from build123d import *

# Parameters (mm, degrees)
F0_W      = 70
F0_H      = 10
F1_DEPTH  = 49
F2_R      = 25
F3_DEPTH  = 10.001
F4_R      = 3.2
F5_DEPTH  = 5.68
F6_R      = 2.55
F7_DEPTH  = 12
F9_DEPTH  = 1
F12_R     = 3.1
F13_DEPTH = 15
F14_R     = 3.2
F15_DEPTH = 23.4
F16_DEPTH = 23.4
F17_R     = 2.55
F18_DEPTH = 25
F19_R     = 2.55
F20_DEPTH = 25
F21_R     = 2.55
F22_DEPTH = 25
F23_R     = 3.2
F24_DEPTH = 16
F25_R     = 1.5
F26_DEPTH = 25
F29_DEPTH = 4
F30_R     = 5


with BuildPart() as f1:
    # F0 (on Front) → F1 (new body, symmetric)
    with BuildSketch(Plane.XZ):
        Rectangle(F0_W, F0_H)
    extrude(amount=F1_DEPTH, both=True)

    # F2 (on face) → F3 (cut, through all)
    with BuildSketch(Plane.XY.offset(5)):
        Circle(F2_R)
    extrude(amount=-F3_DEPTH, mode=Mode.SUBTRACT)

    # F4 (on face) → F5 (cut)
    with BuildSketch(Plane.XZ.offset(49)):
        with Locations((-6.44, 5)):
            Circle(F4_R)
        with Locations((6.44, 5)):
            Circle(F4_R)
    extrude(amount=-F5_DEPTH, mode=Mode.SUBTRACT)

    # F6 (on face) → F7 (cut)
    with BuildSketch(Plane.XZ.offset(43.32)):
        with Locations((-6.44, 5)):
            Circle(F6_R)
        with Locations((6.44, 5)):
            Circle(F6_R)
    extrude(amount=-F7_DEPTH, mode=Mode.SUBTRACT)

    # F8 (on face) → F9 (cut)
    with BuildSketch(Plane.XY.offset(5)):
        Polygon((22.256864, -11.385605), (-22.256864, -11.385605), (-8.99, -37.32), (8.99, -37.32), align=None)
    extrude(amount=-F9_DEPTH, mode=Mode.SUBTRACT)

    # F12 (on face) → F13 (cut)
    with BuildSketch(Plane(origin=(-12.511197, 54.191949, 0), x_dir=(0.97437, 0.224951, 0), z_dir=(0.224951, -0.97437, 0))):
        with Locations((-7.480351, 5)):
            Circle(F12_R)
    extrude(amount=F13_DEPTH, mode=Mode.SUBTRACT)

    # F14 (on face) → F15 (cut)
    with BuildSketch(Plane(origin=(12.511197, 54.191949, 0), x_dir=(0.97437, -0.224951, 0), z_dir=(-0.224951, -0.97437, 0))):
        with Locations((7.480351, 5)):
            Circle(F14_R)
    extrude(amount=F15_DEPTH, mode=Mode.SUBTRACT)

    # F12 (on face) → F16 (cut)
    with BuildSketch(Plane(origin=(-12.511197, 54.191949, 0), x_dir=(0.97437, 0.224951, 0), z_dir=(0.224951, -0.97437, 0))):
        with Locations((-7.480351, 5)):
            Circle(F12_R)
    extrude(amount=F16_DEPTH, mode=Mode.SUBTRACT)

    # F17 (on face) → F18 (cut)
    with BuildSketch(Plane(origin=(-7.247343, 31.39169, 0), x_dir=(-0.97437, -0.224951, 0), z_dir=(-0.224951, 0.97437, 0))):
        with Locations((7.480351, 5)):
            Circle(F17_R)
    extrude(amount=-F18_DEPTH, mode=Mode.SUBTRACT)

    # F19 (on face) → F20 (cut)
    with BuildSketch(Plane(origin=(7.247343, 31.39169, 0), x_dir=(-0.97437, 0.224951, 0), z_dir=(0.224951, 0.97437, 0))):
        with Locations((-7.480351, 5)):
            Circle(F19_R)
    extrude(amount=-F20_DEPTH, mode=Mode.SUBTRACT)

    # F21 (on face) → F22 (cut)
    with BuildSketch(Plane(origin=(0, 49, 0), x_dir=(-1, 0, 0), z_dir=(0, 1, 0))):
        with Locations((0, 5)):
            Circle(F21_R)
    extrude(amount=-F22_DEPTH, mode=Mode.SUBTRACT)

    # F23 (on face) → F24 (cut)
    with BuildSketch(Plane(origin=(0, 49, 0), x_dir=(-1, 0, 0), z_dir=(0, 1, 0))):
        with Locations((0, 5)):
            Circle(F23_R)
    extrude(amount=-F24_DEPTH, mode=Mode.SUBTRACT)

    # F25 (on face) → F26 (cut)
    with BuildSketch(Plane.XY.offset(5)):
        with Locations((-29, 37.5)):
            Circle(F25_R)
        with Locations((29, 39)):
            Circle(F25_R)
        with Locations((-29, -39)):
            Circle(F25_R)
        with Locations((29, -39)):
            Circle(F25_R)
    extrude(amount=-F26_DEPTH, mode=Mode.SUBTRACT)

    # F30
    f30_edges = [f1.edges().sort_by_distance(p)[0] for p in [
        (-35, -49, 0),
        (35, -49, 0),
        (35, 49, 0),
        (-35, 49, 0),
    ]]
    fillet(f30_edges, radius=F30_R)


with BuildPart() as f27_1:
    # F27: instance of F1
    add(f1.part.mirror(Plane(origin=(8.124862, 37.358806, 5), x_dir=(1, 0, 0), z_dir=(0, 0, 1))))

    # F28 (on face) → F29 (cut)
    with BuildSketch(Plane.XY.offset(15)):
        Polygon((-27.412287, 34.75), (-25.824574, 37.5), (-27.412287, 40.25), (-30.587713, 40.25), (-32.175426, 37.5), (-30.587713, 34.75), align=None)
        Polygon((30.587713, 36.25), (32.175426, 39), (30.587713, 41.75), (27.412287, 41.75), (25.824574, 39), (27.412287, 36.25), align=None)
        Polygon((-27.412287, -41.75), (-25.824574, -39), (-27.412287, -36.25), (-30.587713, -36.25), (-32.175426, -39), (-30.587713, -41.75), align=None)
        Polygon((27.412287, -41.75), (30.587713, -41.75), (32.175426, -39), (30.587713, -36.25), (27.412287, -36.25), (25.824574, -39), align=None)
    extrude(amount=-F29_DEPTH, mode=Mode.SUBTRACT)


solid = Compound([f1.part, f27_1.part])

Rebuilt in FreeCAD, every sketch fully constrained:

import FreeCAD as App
import Part
import Sketcher
Q = App.Units.Quantity


def edges_at(feature, points):
    """Names of the edges that pass closest to the given points."""
    edges = feature.Shape.Edges
    near = lambda p: min(range(len(edges)), key=lambda i: edges[i].distToShape(Part.Vertex(*p))[0])
    return sorted({f"Edge{near(p) + 1}" for p in points})

doc = App.newDocument("Part")
body = doc.addObject("PartDesign::Body", "Body")

# Sketch on XZ plane
sketch1 = doc.addObject("Sketcher::SketchObject", "Sketch")
body.addObject(sketch1)
sketch1.AttachmentSupport = (doc.XZ_Plane, [""])
sketch1.MapMode = "FlatFace"
sketch1.addGeometry([
    Part.LineSegment(App.Vector(-35, 5, 0), App.Vector(-35, -5, 0)),
    Part.LineSegment(App.Vector(-35, -5, 0), App.Vector(35, -5, 0)),
    Part.LineSegment(App.Vector(35, -5, 0), App.Vector(35, 5, 0)),
    Part.LineSegment(App.Vector(35, 5, 0), App.Vector(-35, 5, 0)),
], False)
sketch1.addConstraint([
    Sketcher.Constraint("Coincident", 0, 2, 1, 1),
    Sketcher.Constraint("Coincident", 1, 2, 2, 1),
    Sketcher.Constraint("Coincident", 2, 2, 3, 1),
    Sketcher.Constraint("Coincident", 3, 2, 0, 1),
    Sketcher.Constraint("Vertical", 0),
    Sketcher.Constraint("Horizontal", 1),
    Sketcher.Constraint("Vertical", 2),
    Sketcher.Constraint("Horizontal", 3),
    Sketcher.Constraint("Symmetric", 0, 2, 2, 2, -1, 1),
    Sketcher.Constraint("DistanceX", 1, 1, 1, 2, 70.0),
    Sketcher.Constraint("DistanceY", 0, 2, 0, 1, 10.0),
])
pad1 = doc.addObject("PartDesign::Pad", "Pad")
body.addObject(pad1)
pad1.Profile = sketch1
pad1.Length = 98
pad1.Midplane = True

# Sketch on XY plane
sketch2 = doc.addObject("Sketcher::SketchObject", "Sketch001")
body.addObject(sketch2)
sketch2.AttachmentSupport = (doc.XY_Plane, [""])
sketch2.MapMode = "FlatFace"
sketch2.AttachmentOffset = App.Placement(App.Vector(0, 0, 5), App.Rotation())
sketch2.addGeometry(Part.Circle(App.Vector(0, 0, 0), App.Vector(0, 0, 1), 25), False)
sketch2.addConstraint([
    Sketcher.Constraint("Coincident", 0, 3, -1, 1),
    Sketcher.Constraint("Diameter", 0, 50.0),
])
pocket1 = doc.addObject("PartDesign::Pocket", "Pocket")
body.addObject(pocket1)
pocket1.Profile = sketch2
pocket1.Type = "ThroughAll"

# Sketch on XZ plane
sketch3 = doc.addObject("Sketcher::SketchObject", "Sketch002")
body.addObject(sketch3)
sketch3.AttachmentSupport = (doc.XZ_Plane, [""])
sketch3.MapMode = "FlatFace"
sketch3.AttachmentOffset = App.Placement(App.Vector(0, 0, 49), App.Rotation())
sketch3.addGeometry([
    Part.Circle(App.Vector(-6.4, 5, 0), App.Vector(0, 0, 1), 3.2),
    Part.Circle(App.Vector(6.4, 5, 0), App.Vector(0, 0, 1), 3.2),
], False)
sketch3.addConstraint([
    Sketcher.Constraint("Equal", 0, 1),
    Sketcher.Constraint("Symmetric", 0, 3, 1, 3, -2),
    Sketcher.Constraint("Diameter", 0, 6.4),
    Sketcher.Constraint("DistanceY", -1, 1, 0, 3, 5.0),
    Sketcher.Constraint("DistanceX", 0, 3, -1, 1, 6.44),
])
pocket2 = doc.addObject("PartDesign::Pocket", "Pocket001")
body.addObject(pocket2)
pocket2.Profile = sketch3
pocket2.Length = 5.68

# Sketch on XZ plane
sketch4 = doc.addObject("Sketcher::SketchObject", "Sketch003")
body.addObject(sketch4)
sketch4.AttachmentSupport = (doc.XZ_Plane, [""])
sketch4.MapMode = "FlatFace"
sketch4.AttachmentOffset = App.Placement(App.Vector(0, 0, 43.32), App.Rotation())
sketch4.addGeometry([
    Part.Circle(App.Vector(-6.4, 5, 0), App.Vector(0, 0, 1), 2.5),
    Part.Circle(App.Vector(6.4, 5, 0), App.Vector(0, 0, 1), 2.5),
], False)
sketch4.addConstraint([
    Sketcher.Constraint("Equal", 0, 1),
    Sketcher.Constraint("Symmetric", 0, 3, 1, 3, -2),
    Sketcher.Constraint("Diameter", 0, 5.1),
    Sketcher.Constraint("DistanceY", -1, 1, 0, 3, 5.0),
    Sketcher.Constraint("DistanceX", 0, 3, -1, 1, 6.44),
])
pocket3 = doc.addObject("PartDesign::Pocket", "Pocket002")
body.addObject(pocket3)
pocket3.Profile = sketch4
pocket3.Length = 12

# Sketch on XY plane
sketch5 = doc.addObject("Sketcher::SketchObject", "Sketch004")
body.addObject(sketch5)
sketch5.AttachmentSupport = (doc.XY_Plane, [""])
sketch5.MapMode = "FlatFace"
sketch5.AttachmentOffset = App.Placement(App.Vector(0, 0, 5), App.Rotation())
sketch5.addGeometry([
    Part.LineSegment(App.Vector(22, -11, 0), App.Vector(-22, -11, 0)),
    Part.LineSegment(App.Vector(-22, -11, 0), App.Vector(-9, -37, 0)),
    Part.LineSegment(App.Vector(-9, -37, 0), App.Vector(9, -37, 0)),
    Part.LineSegment(App.Vector(9, -37, 0), App.Vector(22, -11, 0)),
], False)
sketch5.addConstraint([
    Sketcher.Constraint("Coincident", 0, 2, 1, 1),
    Sketcher.Constraint("Coincident", 1, 2, 2, 1),
    Sketcher.Constraint("Coincident", 2, 2, 3, 1),
    Sketcher.Constraint("Coincident", 3, 2, 0, 1),
    Sketcher.Constraint("Horizontal", 0),
    Sketcher.Constraint("Horizontal", 2),
    Sketcher.Constraint("Equal", 1, 3),
    Sketcher.Constraint("DistanceX", 2, 1, 2, 2, 17.98),
    Sketcher.Constraint("DistanceX", 1, 2, -1, 1, 8.99),
    Sketcher.Constraint("DistanceY", 1, 2, -1, 1, 37.32),
    Sketcher.Constraint("DistanceX", 0, 2, 0, 1, 44.513728),
    Sketcher.Constraint("Distance", 1, 29.130783),
])
pocket4 = doc.addObject("PartDesign::Pocket", "Pocket003")
body.addObject(pocket4)
pocket4.Profile = sketch5
pocket4.Length = 1

# Sketch on an angled plane
sketch6 = doc.addObject("Sketcher::SketchObject", "Sketch005")
body.addObject(sketch6)
sketch6.Placement = App.Placement(App.Vector(-12.511197, 54.191949, 0), App.Rotation(App.Vector(0.974370073, 0.224951017, 0), App.Vector(0, 0, 0.999999999), App.Vector(0.224951017, -0.974370073, 0), "ZXY"))
sketch6.addGeometry(Part.Circle(App.Vector(-7.5, 5, 0), App.Vector(0, 0, 1), 3.1), False)
sketch6.addConstraint([
    Sketcher.Constraint("Diameter", 0, 6.2),
    Sketcher.Constraint("DistanceY", -1, 1, 0, 3, 5.0),
    Sketcher.Constraint("DistanceX", 0, 3, -1, 1, 7.480351),
])
pocket5 = doc.addObject("PartDesign::Pocket", "Pocket004")
body.addObject(pocket5)
pocket5.Profile = sketch6
pocket5.Length = 15
pocket5.Reversed = True

# Sketch on an angled plane
sketch7 = doc.addObject("Sketcher::SketchObject", "Sketch006")
body.addObject(sketch7)
sketch7.Placement = App.Placement(App.Vector(12.511197, 54.191949, 0), App.Rotation(App.Vector(0.974370073, -0.224951017, 0), App.Vector(0, 0, 0.999999999), App.Vector(-0.224951017, -0.974370073, 0), "ZXY"))
sketch7.addGeometry(Part.Circle(App.Vector(7.5, 5, 0), App.Vector(0, 0, 1), 3.2), False)
sketch7.addConstraint([
    Sketcher.Constraint("Diameter", 0, 6.4),
    Sketcher.Constraint("DistanceY", -1, 1, 0, 3, 5.0),
    Sketcher.Constraint("DistanceX", -1, 1, 0, 3, 7.480351),
])
pocket6 = doc.addObject("PartDesign::Pocket", "Pocket005")
body.addObject(pocket6)
pocket6.Profile = sketch7
pocket6.Length = 23.4
pocket6.Reversed = True

# Sketch on an angled plane
sketch8 = doc.addObject("Sketcher::SketchObject", "Sketch007")
body.addObject(sketch8)
sketch8.Placement = App.Placement(App.Vector(-12.511197, 54.191949, 0), App.Rotation(App.Vector(0.974370073, 0.224951017, 0), App.Vector(0, 0, 0.999999999), App.Vector(0.224951017, -0.974370073, 0), "ZXY"))
sketch8.addGeometry(Part.Circle(App.Vector(-7.5, 5, 0), App.Vector(0, 0, 1), 3.1), False)
sketch8.addConstraint([
    Sketcher.Constraint("Diameter", 0, 6.2),
    Sketcher.Constraint("DistanceY", -1, 1, 0, 3, 5.0),
    Sketcher.Constraint("DistanceX", 0, 3, -1, 1, 7.480351),
])
pocket7 = doc.addObject("PartDesign::Pocket", "Pocket006")
body.addObject(pocket7)
pocket7.Profile = sketch8
pocket7.Length = 23.4
pocket7.Reversed = True

# Sketch on an angled plane
sketch9 = doc.addObject("Sketcher::SketchObject", "Sketch008")
body.addObject(sketch9)
sketch9.Placement = App.Placement(App.Vector(-7.247343, 31.39169, 0), App.Rotation(App.Vector(-0.974370073, -0.224951017, 0), App.Vector(0, 0, 0.999999999), App.Vector(-0.224951017, 0.974370073, 0), "ZXY"))
sketch9.addGeometry(Part.Circle(App.Vector(7.5, 5, 0), App.Vector(0, 0, 1), 2.5), False)
sketch9.addConstraint([
    Sketcher.Constraint("Diameter", 0, 5.1),
    Sketcher.Constraint("DistanceY", -1, 1, 0, 3, 5.0),
    Sketcher.Constraint("DistanceX", -1, 1, 0, 3, 7.480351),
])
pocket8 = doc.addObject("PartDesign::Pocket", "Pocket007")
body.addObject(pocket8)
pocket8.Profile = sketch9
pocket8.Length = 25

# Sketch on an angled plane
sketch10 = doc.addObject("Sketcher::SketchObject", "Sketch009")
body.addObject(sketch10)
sketch10.Placement = App.Placement(App.Vector(7.247343, 31.39169, 0), App.Rotation(App.Vector(-0.974370073, 0.224951017, 0), App.Vector(0, 0, 0.999999999), App.Vector(0.224951017, 0.974370073, 0), "ZXY"))
sketch10.addGeometry(Part.Circle(App.Vector(-7.5, 5, 0), App.Vector(0, 0, 1), 2.5), False)
sketch10.addConstraint([
    Sketcher.Constraint("Diameter", 0, 5.1),
    Sketcher.Constraint("DistanceY", -1, 1, 0, 3, 5.0),
    Sketcher.Constraint("DistanceX", 0, 3, -1, 1, 7.480351),
])
pocket9 = doc.addObject("PartDesign::Pocket", "Pocket008")
body.addObject(pocket9)
pocket9.Profile = sketch10
pocket9.Length = 25

# Sketch on XZ plane
sketch11 = doc.addObject("Sketcher::SketchObject", "Sketch010")
body.addObject(sketch11)
sketch11.AttachmentSupport = (doc.XZ_Plane, [""])
sketch11.MapMode = "FlatFace"
sketch11.AttachmentOffset = App.Placement(App.Vector(0, 0, -49), App.Rotation())
sketch11.addGeometry(Part.Circle(App.Vector(0, 5, 0), App.Vector(0, 0, 1), 2.5), False)
sketch11.addConstraint([
    Sketcher.Constraint("PointOnObject", 0, 3, -2),
    Sketcher.Constraint("Diameter", 0, 5.1),
    Sketcher.Constraint("DistanceY", -1, 1, 0, 3, 5.0),
])
pocket10 = doc.addObject("PartDesign::Pocket", "Pocket009")
body.addObject(pocket10)
pocket10.Profile = sketch11
pocket10.Length = 25
pocket10.Reversed = True

# Sketch on XZ plane
sketch12 = doc.addObject("Sketcher::SketchObject", "Sketch011")
body.addObject(sketch12)
sketch12.AttachmentSupport = (doc.XZ_Plane, [""])
sketch12.MapMode = "FlatFace"
sketch12.AttachmentOffset = App.Placement(App.Vector(0, 0, -49), App.Rotation())
sketch12.addGeometry(Part.Circle(App.Vector(0, 5, 0), App.Vector(0, 0, 1), 3.2), False)
sketch12.addConstraint([
    Sketcher.Constraint("PointOnObject", 0, 3, -2),
    Sketcher.Constraint("Diameter", 0, 6.4),
    Sketcher.Constraint("DistanceY", -1, 1, 0, 3, 5.0),
])
pocket11 = doc.addObject("PartDesign::Pocket", "Pocket010")
body.addObject(pocket11)
pocket11.Profile = sketch12
pocket11.Length = 16
pocket11.Reversed = True

# Sketch on XY plane
sketch13 = doc.addObject("Sketcher::SketchObject", "Sketch012")
body.addObject(sketch13)
sketch13.AttachmentSupport = (doc.XY_Plane, [""])
sketch13.MapMode = "FlatFace"
sketch13.AttachmentOffset = App.Placement(App.Vector(0, 0, 5), App.Rotation())
sketch13.addGeometry([
    Part.Circle(App.Vector(-29, 37.5, 0), App.Vector(0, 0, 1), 1.5),
    Part.Circle(App.Vector(29, 39, 0), App.Vector(0, 0, 1), 1.5),
    Part.Circle(App.Vector(-29, -39, 0), App.Vector(0, 0, 1), 1.5),
    Part.Circle(App.Vector(29, -39, 0), App.Vector(0, 0, 1), 1.5),
], False)
sketch13.addConstraint([
    Sketcher.Constraint("Equal", 0, 1),
    Sketcher.Constraint("Equal", 1, 2),
    Sketcher.Constraint("Equal", 2, 3),
    Sketcher.Constraint("Symmetric", 1, 3, 2, 3, -1, 1),
    Sketcher.Constraint("Symmetric", 2, 3, 3, 3, -2),
    Sketcher.Constraint("Vertical", 0, 3, 2, 3),
    Sketcher.Constraint("Diameter", 0, 3.0),
    Sketcher.Constraint("DistanceX", 0, 3, -1, 1, 29.0),
    Sketcher.Constraint("DistanceY", -1, 1, 1, 3, 39.0),
    Sketcher.Constraint("DistanceY", -1, 1, 0, 3, 37.5),
])
pocket12 = doc.addObject("PartDesign::Pocket", "Pocket011")
body.addObject(pocket12)
pocket12.Profile = sketch13
pocket12.Length = 25
doc.recompute()

fillet = doc.addObject("PartDesign::Fillet", "Fillet")
body.addObject(fillet)
fillet.Base = (pocket12, edges_at(pocket12, [
    (-35, -49, 0),
    (35, -49, 0),
    (35, 49, 0),
    (-35, 49, 0),
]))
fillet.Radius = 5
body2 = doc.addObject("PartDesign::Body", "Body001")
doc.recompute()

mirroring = doc.addObject("Part::Mirroring", "Mirroring")
mirroring.Source = body
mirroring.Base = App.Vector(8.124862, 37.358806, 5)
mirroring.Normal = App.Vector(0, 0, 1)
body2.BaseFeature = mirroring
doc.recompute()

# Sketch on XY plane
sketch14 = doc.addObject("Sketcher::SketchObject", "Sketch013")
body2.addObject(sketch14)
sketch14.AttachmentSupport = (doc.getObject("XY_Plane001"), [""])
sketch14.MapMode = "FlatFace"
sketch14.AttachmentOffset = App.Placement(App.Vector(0, 0, 15), App.Rotation())
sketch14.addGeometry([
    Part.LineSegment(App.Vector(-27.4, 34.8, 0), App.Vector(-25.8, 37.5, 0)),  # 0
    Part.LineSegment(App.Vector(-25.8, 37.5, 0), App.Vector(-27.4, 40.2, 0)),  # 1
    Part.LineSegment(App.Vector(-27.4, 40.2, 0), App.Vector(-30.6, 40.2, 0)),  # 2
    Part.LineSegment(App.Vector(-30.6, 40.2, 0), App.Vector(-32.2, 37.5, 0)),  # 3
    Part.LineSegment(App.Vector(-32.2, 37.5, 0), App.Vector(-30.6, 34.8, 0)),  # 4
    Part.LineSegment(App.Vector(-30.6, 34.8, 0), App.Vector(-27.4, 34.8, 0)),  # 5
    Part.LineSegment(App.Vector(30.6, 36.2, 0), App.Vector(32.2, 39, 0)),  # 6
    Part.LineSegment(App.Vector(32.2, 39, 0), App.Vector(30.6, 41.8, 0)),  # 7
    Part.LineSegment(App.Vector(30.6, 41.8, 0), App.Vector(27.4, 41.8, 0)),  # 8
    Part.LineSegment(App.Vector(27.4, 41.8, 0), App.Vector(25.8, 39, 0)),  # 9
    Part.LineSegment(App.Vector(25.8, 39, 0), App.Vector(27.4, 36.2, 0)),  # 10
    Part.LineSegment(App.Vector(27.4, 36.2, 0), App.Vector(30.6, 36.2, 0)),  # 11
    Part.LineSegment(App.Vector(-27.4, -41.8, 0), App.Vector(-25.8, -39, 0)),  # 12
    Part.LineSegment(App.Vector(-25.8, -39, 0), App.Vector(-27.4, -36.2, 0)),  # 13
    Part.LineSegment(App.Vector(-27.4, -36.2, 0), App.Vector(-30.6, -36.2, 0)),  # 14
    Part.LineSegment(App.Vector(-30.6, -36.2, 0), App.Vector(-32.2, -39, 0)),  # 15
    Part.LineSegment(App.Vector(-32.2, -39, 0), App.Vector(-30.6, -41.8, 0)),  # 16
    Part.LineSegment(App.Vector(-30.6, -41.8, 0), App.Vector(-27.4, -41.8, 0)),  # 17
    Part.LineSegment(App.Vector(27.4, -41.8, 0), App.Vector(30.6, -41.8, 0)),  # 18
    Part.LineSegment(App.Vector(30.6, -41.8, 0), App.Vector(32.2, -39, 0)),  # 19
    Part.LineSegment(App.Vector(32.2, -39, 0), App.Vector(30.6, -36.2, 0)),  # 20
    Part.LineSegment(App.Vector(30.6, -36.2, 0), App.Vector(27.4, -36.2, 0)),  # 21
    Part.LineSegment(App.Vector(27.4, -36.2, 0), App.Vector(25.8, -39, 0)),  # 22
    Part.LineSegment(App.Vector(25.8, -39, 0), App.Vector(27.4, -41.8, 0)),  # 23
], False)
sketch14.addConstraint([
    Sketcher.Constraint("Coincident", 0, 2, 1, 1),
    Sketcher.Constraint("Coincident", 1, 2, 2, 1),
    Sketcher.Constraint("Coincident", 2, 2, 3, 1),
    Sketcher.Constraint("Coincident", 3, 2, 4, 1),
    Sketcher.Constraint("Coincident", 4, 2, 5, 1),
    Sketcher.Constraint("Coincident", 5, 2, 0, 1),
    Sketcher.Constraint("Coincident", 6, 2, 7, 1),
    Sketcher.Constraint("Coincident", 7, 2, 8, 1),
    Sketcher.Constraint("Coincident", 8, 2, 9, 1),
    Sketcher.Constraint("Coincident", 9, 2, 10, 1),
    Sketcher.Constraint("Coincident", 10, 2, 11, 1),
    Sketcher.Constraint("Coincident", 11, 2, 6, 1),
    Sketcher.Constraint("Coincident", 12, 2, 13, 1),
    Sketcher.Constraint("Coincident", 13, 2, 14, 1),
    Sketcher.Constraint("Coincident", 14, 2, 15, 1),
    Sketcher.Constraint("Coincident", 15, 2, 16, 1),
    Sketcher.Constraint("Coincident", 16, 2, 17, 1),
    Sketcher.Constraint("Coincident", 17, 2, 12, 1),
    Sketcher.Constraint("Coincident", 18, 2, 19, 1),
    Sketcher.Constraint("Coincident", 19, 2, 20, 1),
    Sketcher.Constraint("Coincident", 20, 2, 21, 1),
    Sketcher.Constraint("Coincident", 21, 2, 22, 1),
    Sketcher.Constraint("Coincident", 22, 2, 23, 1),
    Sketcher.Constraint("Coincident", 23, 2, 18, 1),
    Sketcher.Constraint("Horizontal", 2),
    Sketcher.Constraint("Horizontal", 5),
    Sketcher.Constraint("Horizontal", 8),
    Sketcher.Constraint("Horizontal", 11),
    Sketcher.Constraint("Horizontal", 14),
    Sketcher.Constraint("Horizontal", 17),
    Sketcher.Constraint("Horizontal", 18),
    Sketcher.Constraint("Horizontal", 21),
    Sketcher.Constraint("Symmetric", 9, 2, 12, 2, -1, 1),
    Sketcher.Constraint("Symmetric", 10, 2, 13, 2, -1, 1),
    Sketcher.Constraint("Symmetric", 6, 2, 15, 2, -1, 1),
    Sketcher.Constraint("Symmetric", 7, 2, 16, 2, -1, 1),
    Sketcher.Constraint("Symmetric", 16, 2, 18, 2, -2),
    Sketcher.Constraint("Symmetric", 15, 2, 19, 2, -2),
    Sketcher.Constraint("Symmetric", 14, 2, 20, 2, -2),
    Sketcher.Constraint("Symmetric", 12, 2, 22, 2, -2),
    Sketcher.Constraint("Parallel", 0, 3),
    Sketcher.Constraint("Parallel", 1, 4),
    Sketcher.Constraint("Parallel", 3, 6),
    Sketcher.Constraint("Parallel", 4, 7),
    Sketcher.Constraint("Parallel", 6, 9),
    Sketcher.Constraint("Parallel", 7, 10),
    Sketcher.Constraint("Parallel", 9, 12),
    Sketcher.Constraint("Parallel", 12, 15),
    Sketcher.Constraint("Parallel", 15, 19),
    Sketcher.Constraint("Parallel", 19, 22),
    Sketcher.Constraint("Parallel", 20, 23),
    Sketcher.Constraint("Horizontal", 0, 2, 3, 2),
    Sketcher.Constraint("Horizontal", 6, 2, 9, 2),
    Sketcher.Constraint("Vertical", 2, 2, 4, 2),
    Sketcher.Constraint("Vertical", 8, 2, 10, 2),
    Sketcher.Constraint("Vertical", 0, 2, 12, 2),
    Sketcher.Constraint("Vertical", 5, 2, 13, 2),
    Sketcher.Constraint("Vertical", 4, 2, 14, 2),
    Sketcher.Constraint("Angle", 0, Q("60.000004 deg")),
    Sketcher.Constraint("DistanceY", -1, 1, 6, 2, 39.0),
    Sketcher.Constraint("DistanceX", 0, 2, 6, 2, 58.0),
    Sketcher.Constraint("DistanceY", 5, 2, 7, 2, 7.0),
    Sketcher.Constraint("DistanceY", -1, 1, 0, 2, 37.5),
    Sketcher.Constraint("DistanceX", 2, 2, 2, 1, 3.175426),
])
pocket13 = doc.addObject("PartDesign::Pocket", "Pocket012")
body2.addObject(pocket13)
pocket13.Profile = sketch14
pocket13.Length = 4
mirroring.Visibility = False

doc.recompute()
